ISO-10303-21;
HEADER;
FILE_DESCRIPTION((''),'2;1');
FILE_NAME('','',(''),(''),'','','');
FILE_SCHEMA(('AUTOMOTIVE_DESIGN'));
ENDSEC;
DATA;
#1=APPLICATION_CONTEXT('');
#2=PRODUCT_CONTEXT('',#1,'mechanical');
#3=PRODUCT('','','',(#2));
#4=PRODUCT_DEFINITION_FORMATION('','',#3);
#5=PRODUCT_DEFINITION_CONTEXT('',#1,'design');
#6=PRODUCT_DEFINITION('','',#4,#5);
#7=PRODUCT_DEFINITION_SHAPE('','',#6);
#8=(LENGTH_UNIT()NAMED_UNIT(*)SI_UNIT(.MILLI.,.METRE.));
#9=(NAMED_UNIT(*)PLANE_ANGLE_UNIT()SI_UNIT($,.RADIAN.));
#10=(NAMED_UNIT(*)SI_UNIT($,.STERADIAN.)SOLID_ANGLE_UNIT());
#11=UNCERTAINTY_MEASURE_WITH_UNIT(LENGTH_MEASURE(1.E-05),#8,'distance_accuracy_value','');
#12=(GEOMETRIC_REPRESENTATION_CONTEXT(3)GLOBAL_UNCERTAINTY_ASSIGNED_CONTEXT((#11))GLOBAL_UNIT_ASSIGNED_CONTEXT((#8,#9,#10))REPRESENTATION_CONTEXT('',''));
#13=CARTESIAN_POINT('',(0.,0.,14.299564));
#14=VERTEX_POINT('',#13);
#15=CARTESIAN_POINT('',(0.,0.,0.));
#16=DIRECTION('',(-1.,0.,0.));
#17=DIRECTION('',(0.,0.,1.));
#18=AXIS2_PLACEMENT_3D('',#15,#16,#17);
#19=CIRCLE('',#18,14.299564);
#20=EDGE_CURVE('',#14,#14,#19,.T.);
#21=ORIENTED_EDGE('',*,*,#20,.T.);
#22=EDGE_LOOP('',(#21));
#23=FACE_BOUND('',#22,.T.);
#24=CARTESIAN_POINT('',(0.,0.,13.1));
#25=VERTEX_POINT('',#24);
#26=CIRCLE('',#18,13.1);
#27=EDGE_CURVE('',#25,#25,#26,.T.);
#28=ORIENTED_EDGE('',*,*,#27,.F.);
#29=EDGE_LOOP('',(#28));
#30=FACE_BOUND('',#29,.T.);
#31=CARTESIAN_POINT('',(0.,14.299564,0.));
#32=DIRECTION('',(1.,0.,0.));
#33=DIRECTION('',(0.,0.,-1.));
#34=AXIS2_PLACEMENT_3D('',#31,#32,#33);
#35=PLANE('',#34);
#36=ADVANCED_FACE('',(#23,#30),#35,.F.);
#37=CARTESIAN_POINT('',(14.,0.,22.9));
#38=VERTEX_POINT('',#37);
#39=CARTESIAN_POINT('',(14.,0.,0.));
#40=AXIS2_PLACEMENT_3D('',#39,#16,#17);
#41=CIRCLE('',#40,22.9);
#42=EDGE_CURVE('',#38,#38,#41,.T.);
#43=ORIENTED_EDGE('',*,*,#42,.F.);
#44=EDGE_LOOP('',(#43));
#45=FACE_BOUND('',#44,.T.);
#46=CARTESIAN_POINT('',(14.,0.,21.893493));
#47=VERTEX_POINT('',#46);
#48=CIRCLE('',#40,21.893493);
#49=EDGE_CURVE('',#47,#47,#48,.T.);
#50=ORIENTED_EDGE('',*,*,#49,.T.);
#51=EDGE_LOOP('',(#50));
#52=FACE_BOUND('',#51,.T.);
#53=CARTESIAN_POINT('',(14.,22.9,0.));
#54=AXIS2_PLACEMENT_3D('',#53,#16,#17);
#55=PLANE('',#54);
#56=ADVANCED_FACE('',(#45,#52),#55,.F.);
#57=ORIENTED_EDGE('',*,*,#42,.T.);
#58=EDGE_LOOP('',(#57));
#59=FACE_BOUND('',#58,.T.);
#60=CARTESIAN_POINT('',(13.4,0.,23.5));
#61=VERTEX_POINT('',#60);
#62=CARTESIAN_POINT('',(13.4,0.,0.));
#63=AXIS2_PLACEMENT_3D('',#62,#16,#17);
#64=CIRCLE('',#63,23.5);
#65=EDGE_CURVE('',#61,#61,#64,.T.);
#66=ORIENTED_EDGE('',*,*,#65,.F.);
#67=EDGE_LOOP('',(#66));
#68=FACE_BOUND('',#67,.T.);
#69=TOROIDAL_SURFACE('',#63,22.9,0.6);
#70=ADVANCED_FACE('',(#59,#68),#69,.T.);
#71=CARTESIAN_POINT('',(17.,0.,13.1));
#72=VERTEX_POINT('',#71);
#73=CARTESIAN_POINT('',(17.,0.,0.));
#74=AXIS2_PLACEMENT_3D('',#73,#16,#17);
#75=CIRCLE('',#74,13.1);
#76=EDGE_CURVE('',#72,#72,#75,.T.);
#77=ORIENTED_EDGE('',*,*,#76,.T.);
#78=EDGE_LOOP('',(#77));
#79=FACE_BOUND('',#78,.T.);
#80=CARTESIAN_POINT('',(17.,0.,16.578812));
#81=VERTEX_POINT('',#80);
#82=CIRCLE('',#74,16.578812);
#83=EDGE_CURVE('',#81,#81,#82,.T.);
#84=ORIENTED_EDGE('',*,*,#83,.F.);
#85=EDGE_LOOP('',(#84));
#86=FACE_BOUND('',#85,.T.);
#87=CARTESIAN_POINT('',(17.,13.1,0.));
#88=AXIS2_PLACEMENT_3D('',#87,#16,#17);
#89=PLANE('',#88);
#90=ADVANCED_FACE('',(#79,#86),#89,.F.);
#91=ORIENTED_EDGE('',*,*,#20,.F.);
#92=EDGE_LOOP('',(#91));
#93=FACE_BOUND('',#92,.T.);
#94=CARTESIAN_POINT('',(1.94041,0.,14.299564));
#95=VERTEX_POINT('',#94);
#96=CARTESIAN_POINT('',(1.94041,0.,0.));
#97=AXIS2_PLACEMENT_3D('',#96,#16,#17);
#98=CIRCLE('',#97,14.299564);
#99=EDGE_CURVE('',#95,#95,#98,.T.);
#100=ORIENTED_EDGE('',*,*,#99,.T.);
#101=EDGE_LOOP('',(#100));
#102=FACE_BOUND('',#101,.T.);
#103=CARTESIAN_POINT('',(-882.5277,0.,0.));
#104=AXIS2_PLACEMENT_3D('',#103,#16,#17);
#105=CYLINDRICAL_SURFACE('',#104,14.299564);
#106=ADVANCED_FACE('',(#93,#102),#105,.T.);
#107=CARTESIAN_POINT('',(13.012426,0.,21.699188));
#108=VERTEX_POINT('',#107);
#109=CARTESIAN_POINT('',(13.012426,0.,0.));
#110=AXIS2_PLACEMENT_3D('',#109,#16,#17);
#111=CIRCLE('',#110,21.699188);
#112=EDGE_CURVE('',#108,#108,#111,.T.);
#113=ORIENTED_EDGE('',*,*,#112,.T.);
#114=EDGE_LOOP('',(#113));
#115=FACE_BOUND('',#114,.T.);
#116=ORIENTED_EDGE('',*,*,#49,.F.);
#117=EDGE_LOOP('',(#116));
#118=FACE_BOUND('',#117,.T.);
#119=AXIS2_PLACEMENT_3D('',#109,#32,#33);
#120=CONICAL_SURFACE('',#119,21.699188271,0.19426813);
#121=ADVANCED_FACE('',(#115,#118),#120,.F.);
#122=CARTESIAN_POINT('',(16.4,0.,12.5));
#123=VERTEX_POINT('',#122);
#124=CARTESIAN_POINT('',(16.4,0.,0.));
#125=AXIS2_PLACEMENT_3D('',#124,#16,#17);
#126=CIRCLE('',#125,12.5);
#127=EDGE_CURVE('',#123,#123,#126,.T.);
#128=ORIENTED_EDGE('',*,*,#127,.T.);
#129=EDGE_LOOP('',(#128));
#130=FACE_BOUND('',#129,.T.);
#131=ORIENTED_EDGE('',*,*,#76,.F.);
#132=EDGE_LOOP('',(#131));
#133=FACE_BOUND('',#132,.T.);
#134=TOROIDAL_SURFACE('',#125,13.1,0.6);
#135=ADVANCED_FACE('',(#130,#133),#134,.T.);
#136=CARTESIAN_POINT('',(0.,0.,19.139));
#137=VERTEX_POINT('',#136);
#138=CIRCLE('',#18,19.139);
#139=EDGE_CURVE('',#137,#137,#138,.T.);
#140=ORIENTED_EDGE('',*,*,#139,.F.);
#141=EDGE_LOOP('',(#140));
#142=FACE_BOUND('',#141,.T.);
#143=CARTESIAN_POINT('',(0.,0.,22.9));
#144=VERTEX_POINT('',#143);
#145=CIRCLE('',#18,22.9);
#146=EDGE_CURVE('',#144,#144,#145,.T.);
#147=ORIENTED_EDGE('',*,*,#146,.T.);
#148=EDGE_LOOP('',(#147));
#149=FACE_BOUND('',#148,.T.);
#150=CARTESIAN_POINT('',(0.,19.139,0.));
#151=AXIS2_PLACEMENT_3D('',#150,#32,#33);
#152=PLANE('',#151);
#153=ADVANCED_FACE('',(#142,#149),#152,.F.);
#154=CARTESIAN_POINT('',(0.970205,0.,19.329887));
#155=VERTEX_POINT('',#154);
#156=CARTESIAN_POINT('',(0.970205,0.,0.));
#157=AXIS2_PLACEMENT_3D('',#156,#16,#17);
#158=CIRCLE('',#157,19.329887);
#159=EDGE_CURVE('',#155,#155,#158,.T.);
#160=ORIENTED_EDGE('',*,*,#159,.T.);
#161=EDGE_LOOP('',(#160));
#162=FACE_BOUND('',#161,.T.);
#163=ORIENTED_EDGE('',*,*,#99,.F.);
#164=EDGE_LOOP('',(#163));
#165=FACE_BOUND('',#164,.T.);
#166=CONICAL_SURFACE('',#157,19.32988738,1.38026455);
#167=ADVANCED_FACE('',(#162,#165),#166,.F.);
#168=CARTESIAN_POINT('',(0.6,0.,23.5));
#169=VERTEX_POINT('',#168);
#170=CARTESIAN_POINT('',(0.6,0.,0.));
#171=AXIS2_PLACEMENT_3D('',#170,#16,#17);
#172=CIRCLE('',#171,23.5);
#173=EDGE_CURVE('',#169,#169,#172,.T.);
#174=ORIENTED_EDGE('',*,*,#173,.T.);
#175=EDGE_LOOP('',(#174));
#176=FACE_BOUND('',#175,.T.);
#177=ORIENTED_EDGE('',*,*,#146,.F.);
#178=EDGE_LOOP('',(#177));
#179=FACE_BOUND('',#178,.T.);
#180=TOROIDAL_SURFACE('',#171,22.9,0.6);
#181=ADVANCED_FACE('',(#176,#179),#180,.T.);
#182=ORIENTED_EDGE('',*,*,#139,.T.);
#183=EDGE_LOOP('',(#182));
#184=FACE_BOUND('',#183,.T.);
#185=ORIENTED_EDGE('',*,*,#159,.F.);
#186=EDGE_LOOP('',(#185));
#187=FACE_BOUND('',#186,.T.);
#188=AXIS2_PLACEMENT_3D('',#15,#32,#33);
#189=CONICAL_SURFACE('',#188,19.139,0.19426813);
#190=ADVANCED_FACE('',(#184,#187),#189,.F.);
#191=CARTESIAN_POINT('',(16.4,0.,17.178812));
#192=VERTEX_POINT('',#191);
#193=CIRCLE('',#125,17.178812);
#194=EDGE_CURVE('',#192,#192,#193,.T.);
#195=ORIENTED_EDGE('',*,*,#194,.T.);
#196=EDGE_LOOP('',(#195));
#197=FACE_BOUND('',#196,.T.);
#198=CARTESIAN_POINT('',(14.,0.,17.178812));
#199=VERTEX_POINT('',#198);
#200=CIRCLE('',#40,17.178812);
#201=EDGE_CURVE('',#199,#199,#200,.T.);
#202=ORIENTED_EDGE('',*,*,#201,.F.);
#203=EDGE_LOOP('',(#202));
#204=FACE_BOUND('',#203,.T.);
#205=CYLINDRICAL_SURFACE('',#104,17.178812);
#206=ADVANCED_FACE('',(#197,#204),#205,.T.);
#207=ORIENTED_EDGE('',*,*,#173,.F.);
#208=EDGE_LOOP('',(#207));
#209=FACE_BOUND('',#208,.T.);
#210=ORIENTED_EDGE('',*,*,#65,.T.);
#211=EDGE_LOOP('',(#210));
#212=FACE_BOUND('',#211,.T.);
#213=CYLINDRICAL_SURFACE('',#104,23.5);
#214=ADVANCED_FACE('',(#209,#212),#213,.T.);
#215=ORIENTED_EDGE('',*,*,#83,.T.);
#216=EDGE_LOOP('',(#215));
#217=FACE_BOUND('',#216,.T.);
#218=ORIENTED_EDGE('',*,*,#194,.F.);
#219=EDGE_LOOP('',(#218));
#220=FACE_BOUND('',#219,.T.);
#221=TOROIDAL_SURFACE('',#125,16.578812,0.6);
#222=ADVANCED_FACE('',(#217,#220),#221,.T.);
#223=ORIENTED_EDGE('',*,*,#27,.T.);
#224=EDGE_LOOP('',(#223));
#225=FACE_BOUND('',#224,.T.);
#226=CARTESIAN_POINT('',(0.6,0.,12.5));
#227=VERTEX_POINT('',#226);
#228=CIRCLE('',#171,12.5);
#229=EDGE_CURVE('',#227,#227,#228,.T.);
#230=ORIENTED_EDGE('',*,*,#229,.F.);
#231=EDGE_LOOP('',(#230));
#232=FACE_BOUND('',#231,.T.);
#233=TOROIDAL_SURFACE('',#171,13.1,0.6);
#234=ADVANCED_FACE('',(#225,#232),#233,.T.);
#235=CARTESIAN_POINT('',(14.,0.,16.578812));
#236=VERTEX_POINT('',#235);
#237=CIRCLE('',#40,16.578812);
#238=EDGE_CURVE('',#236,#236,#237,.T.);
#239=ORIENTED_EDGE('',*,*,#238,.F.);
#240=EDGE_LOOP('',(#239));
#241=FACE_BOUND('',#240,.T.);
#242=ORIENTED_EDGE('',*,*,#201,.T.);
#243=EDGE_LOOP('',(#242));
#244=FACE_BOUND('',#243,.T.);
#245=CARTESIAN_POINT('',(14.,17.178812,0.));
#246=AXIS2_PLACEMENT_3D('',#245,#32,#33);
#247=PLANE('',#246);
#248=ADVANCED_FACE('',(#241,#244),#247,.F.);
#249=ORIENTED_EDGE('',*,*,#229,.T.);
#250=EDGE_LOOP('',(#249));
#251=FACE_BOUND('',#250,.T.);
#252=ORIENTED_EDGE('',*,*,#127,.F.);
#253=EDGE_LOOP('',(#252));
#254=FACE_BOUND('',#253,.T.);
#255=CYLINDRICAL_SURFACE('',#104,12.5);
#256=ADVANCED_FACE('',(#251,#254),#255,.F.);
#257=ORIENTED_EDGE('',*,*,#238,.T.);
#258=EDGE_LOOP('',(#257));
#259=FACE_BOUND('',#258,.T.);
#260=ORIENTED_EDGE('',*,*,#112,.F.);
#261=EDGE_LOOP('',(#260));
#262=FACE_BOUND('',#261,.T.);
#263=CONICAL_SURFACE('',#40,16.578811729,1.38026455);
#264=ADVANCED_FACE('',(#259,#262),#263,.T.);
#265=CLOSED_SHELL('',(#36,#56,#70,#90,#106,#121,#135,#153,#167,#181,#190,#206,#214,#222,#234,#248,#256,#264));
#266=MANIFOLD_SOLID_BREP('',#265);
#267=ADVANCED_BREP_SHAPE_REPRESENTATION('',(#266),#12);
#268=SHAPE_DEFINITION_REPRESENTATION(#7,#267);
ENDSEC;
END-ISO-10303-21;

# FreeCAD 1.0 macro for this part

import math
import FreeCAD as App
import Part
import Sketcher

V = App.Vector
Q = App.Units.Quantity

doc = App.newDocument("Part")
body = doc.addObject("PartDesign::Body", "Body")

# Sketch on XY plane
sketch1 = body.newObject("Sketcher::SketchObject", "Sketch")
sketch1.AttachmentSupport = (doc.getObject("XY_Plane"), [""])
sketch1.MapMode = "FlatFace"
sketch1.addGeometry(Part.LineSegment(V(0, 19.1, 0), V(1, 19.3, 0)), False)
sketch1.addGeometry(Part.LineSegment(V(1, 19.3, 0), V(1.9, 14.3, 0)), False)
sketch1.addGeometry(Part.LineSegment(V(1.9, 14.3, 0), V(0, 14.3, 0)), False)
sketch1.addGeometry(Part.LineSegment(V(0, 14.3, 0), V(0, 13.1, 0)), False)
sketch1.addGeometry(Part.ArcOfCircle(Part.Circle(V(0.6, 13.1, 0), V(0, 0, 1), 0.6), math.radians(180), math.radians(270)), False)
sketch1.addGeometry(Part.LineSegment(V(0.6, 12.5, 0), V(16.4, 12.5, 0)), False)
sketch1.addGeometry(Part.ArcOfCircle(Part.Circle(V(16.4, 13.1, 0), V(0, 0, 1), 0.6), math.radians(-90), math.radians(0)), False)
sketch1.addGeometry(Part.LineSegment(V(17, 13.1, 0), V(17, 16.6, 0)), False)
sketch1.addGeometry(Part.ArcOfCircle(Part.Circle(V(16.4, 16.6, 0), V(0, 0, 1), 0.6), math.radians(0), math.radians(90)), False)
sketch1.addGeometry(Part.LineSegment(V(16.4, 17.2, 0), V(14, 17.2, 0)), False)
sketch1.addGeometry(Part.LineSegment(V(14, 17.2, 0), V(14, 16.6, 0)), False)
sketch1.addGeometry(Part.LineSegment(V(14, 16.6, 0), V(13, 21.7, 0)), False)
sketch1.addGeometry(Part.LineSegment(V(13, 21.7, 0), V(14, 21.9, 0)), False)
sketch1.addGeometry(Part.LineSegment(V(14, 21.9, 0), V(14, 22.9, 0)), False)
sketch1.addGeometry(Part.ArcOfCircle(Part.Circle(V(13.4, 22.9, 0), V(0, 0, 1), 0.6), math.radians(0), math.radians(90)), False)
sketch1.addGeometry(Part.LineSegment(V(13.4, 23.5, 0), V(0.6, 23.5, 0)), False)
sketch1.addGeometry(Part.ArcOfCircle(Part.Circle(V(0.6, 22.9, 0), V(0, 0, 1), 0.6), math.radians(90), math.radians(180)), False)
sketch1.addGeometry(Part.LineSegment(V(0, 22.9, 0), V(0, 19.1, 0)), False)
sketch1.addConstraint(Sketcher.Constraint("Coincident", 0, 2, 1, 1))
sketch1.addConstraint(Sketcher.Constraint("Coincident", 1, 2, 2, 1))
sketch1.addConstraint(Sketcher.Constraint("Coincident", 2, 2, 3, 1))
sketch1.addConstraint(Sketcher.Constraint("Tangent", 3, 2, 4, 1))
sketch1.addConstraint(Sketcher.Constraint("Tangent", 4, 2, 5, 1))
sketch1.addConstraint(Sketcher.Constraint("Tangent", 5, 2, 6, 1))
sketch1.addConstraint(Sketcher.Constraint("Tangent", 6, 2, 7, 1))
sketch1.addConstraint(Sketcher.Constraint("Tangent", 7, 2, 8, 1))
sketch1.addConstraint(Sketcher.Constraint("Tangent", 8, 2, 9, 1))
sketch1.addConstraint(Sketcher.Constraint("Coincident", 9, 2, 10, 1))
sketch1.addConstraint(Sketcher.Constraint("Coincident", 10, 2, 11, 1))
sketch1.addConstraint(Sketcher.Constraint("Coincident", 11, 2, 12, 1))
sketch1.addConstraint(Sketcher.Constraint("Coincident", 12, 2, 13, 1))
sketch1.addConstraint(Sketcher.Constraint("Tangent", 13, 2, 14, 1))
sketch1.addConstraint(Sketcher.Constraint("Tangent", 14, 2, 15, 1))
sketch1.addConstraint(Sketcher.Constraint("Tangent", 15, 2, 16, 1))
sketch1.addConstraint(Sketcher.Constraint("Tangent", 16, 2, 17, 1))
sketch1.addConstraint(Sketcher.Constraint("Coincident", 17, 2, 0, 1))
sketch1.addConstraint(Sketcher.Constraint("Horizontal", 2))
sketch1.addConstraint(Sketcher.Constraint("Vertical", 3))
sketch1.addConstraint(Sketcher.Constraint("Horizontal", 5))
sketch1.addConstraint(Sketcher.Constraint("Vertical", 7))
sketch1.addConstraint(Sketcher.Constraint("Horizontal", 9))
sketch1.addConstraint(Sketcher.Constraint("Vertical", 10))
sketch1.addConstraint(Sketcher.Constraint("Vertical", 13))
sketch1.addConstraint(Sketcher.Constraint("Horizontal", 15))
sketch1.addConstraint(Sketcher.Constraint("Vertical", 17))
sketch1.addConstraint(Sketcher.Constraint("Equal", 4, 6))
sketch1.addConstraint(Sketcher.Constraint("Equal", 6, 8))
sketch1.addConstraint(Sketcher.Constraint("Equal", 8, 14))
sketch1.addConstraint(Sketcher.Constraint("Equal", 14, 16))
sketch1.addConstraint(Sketcher.Constraint("PointOnObject", 2, 2, -2))
sketch1.addConstraint(Sketcher.Constraint("PointOnObject", 16, 2, -2))
sketch1.addConstraint(Sketcher.Constraint("Parallel", 1, 11))
sketch1.addConstraint(Sketcher.Constraint("Parallel", 0, 12))
sketch1.addConstraint(Sketcher.Constraint("Horizontal", 7, 2, 10, 2))
sketch1.addConstraint(Sketcher.Constraint("Vertical", 10, 2, 12, 2))
sketch1.addConstraint(Sketcher.Constraint("Radius", 4, Q("0.6 mm")))
sketch1.addConstraint(Sketcher.Constraint("DistanceX", 5, 1, 5, 2, Q("15.8 mm")))
sketch1.addConstraint(Sketcher.Constraint("DistanceX", 9, 2, 9, 1, Q("2.4 mm")))
sketch1.addConstraint(Sketcher.Constraint("DistanceY", -1, 1, 4, 3, Q("13.1 mm")))
sketch1.addConstraint(Sketcher.Constraint("DistanceY", -1, 1, 14, 3, Q("22.9 mm")))
sketch1.addConstraint(Sketcher.Constraint("DistanceY", 17, 2, 17, 1, Q("3.761 mm")))
sketch1.addConstraint(Sketcher.Constraint("DistanceX", 2, 2, 2, 1, Q("1.94041 mm")))
sketch1.addConstraint(Sketcher.Constraint("DistanceY", 7, 1, 7, 2, Q("3.478812 mm")))
sketch1.addConstraint(Sketcher.Constraint("Distance", 1, Q("5.123031 mm")))
sketch1.addConstraint(Sketcher.Constraint("DistanceY", 3, 2, 3, 1, Q("1.199564 mm")))
sketch1.addConstraint(Sketcher.Constraint("DistanceY", 13, 1, 13, 2, Q("1.006507 mm")))
sketch1.addConstraint(Sketcher.Constraint("DistanceY", -1, 1, 11, 2, Q("21.699188 mm")))
revolution = body.newObject("PartDesign::Revolution", "Revolution")
revolution.Profile = sketch1
revolution.ReferenceAxis = (sketch1, ["H_Axis"])
revolution.Angle = 360

doc.recompute()
